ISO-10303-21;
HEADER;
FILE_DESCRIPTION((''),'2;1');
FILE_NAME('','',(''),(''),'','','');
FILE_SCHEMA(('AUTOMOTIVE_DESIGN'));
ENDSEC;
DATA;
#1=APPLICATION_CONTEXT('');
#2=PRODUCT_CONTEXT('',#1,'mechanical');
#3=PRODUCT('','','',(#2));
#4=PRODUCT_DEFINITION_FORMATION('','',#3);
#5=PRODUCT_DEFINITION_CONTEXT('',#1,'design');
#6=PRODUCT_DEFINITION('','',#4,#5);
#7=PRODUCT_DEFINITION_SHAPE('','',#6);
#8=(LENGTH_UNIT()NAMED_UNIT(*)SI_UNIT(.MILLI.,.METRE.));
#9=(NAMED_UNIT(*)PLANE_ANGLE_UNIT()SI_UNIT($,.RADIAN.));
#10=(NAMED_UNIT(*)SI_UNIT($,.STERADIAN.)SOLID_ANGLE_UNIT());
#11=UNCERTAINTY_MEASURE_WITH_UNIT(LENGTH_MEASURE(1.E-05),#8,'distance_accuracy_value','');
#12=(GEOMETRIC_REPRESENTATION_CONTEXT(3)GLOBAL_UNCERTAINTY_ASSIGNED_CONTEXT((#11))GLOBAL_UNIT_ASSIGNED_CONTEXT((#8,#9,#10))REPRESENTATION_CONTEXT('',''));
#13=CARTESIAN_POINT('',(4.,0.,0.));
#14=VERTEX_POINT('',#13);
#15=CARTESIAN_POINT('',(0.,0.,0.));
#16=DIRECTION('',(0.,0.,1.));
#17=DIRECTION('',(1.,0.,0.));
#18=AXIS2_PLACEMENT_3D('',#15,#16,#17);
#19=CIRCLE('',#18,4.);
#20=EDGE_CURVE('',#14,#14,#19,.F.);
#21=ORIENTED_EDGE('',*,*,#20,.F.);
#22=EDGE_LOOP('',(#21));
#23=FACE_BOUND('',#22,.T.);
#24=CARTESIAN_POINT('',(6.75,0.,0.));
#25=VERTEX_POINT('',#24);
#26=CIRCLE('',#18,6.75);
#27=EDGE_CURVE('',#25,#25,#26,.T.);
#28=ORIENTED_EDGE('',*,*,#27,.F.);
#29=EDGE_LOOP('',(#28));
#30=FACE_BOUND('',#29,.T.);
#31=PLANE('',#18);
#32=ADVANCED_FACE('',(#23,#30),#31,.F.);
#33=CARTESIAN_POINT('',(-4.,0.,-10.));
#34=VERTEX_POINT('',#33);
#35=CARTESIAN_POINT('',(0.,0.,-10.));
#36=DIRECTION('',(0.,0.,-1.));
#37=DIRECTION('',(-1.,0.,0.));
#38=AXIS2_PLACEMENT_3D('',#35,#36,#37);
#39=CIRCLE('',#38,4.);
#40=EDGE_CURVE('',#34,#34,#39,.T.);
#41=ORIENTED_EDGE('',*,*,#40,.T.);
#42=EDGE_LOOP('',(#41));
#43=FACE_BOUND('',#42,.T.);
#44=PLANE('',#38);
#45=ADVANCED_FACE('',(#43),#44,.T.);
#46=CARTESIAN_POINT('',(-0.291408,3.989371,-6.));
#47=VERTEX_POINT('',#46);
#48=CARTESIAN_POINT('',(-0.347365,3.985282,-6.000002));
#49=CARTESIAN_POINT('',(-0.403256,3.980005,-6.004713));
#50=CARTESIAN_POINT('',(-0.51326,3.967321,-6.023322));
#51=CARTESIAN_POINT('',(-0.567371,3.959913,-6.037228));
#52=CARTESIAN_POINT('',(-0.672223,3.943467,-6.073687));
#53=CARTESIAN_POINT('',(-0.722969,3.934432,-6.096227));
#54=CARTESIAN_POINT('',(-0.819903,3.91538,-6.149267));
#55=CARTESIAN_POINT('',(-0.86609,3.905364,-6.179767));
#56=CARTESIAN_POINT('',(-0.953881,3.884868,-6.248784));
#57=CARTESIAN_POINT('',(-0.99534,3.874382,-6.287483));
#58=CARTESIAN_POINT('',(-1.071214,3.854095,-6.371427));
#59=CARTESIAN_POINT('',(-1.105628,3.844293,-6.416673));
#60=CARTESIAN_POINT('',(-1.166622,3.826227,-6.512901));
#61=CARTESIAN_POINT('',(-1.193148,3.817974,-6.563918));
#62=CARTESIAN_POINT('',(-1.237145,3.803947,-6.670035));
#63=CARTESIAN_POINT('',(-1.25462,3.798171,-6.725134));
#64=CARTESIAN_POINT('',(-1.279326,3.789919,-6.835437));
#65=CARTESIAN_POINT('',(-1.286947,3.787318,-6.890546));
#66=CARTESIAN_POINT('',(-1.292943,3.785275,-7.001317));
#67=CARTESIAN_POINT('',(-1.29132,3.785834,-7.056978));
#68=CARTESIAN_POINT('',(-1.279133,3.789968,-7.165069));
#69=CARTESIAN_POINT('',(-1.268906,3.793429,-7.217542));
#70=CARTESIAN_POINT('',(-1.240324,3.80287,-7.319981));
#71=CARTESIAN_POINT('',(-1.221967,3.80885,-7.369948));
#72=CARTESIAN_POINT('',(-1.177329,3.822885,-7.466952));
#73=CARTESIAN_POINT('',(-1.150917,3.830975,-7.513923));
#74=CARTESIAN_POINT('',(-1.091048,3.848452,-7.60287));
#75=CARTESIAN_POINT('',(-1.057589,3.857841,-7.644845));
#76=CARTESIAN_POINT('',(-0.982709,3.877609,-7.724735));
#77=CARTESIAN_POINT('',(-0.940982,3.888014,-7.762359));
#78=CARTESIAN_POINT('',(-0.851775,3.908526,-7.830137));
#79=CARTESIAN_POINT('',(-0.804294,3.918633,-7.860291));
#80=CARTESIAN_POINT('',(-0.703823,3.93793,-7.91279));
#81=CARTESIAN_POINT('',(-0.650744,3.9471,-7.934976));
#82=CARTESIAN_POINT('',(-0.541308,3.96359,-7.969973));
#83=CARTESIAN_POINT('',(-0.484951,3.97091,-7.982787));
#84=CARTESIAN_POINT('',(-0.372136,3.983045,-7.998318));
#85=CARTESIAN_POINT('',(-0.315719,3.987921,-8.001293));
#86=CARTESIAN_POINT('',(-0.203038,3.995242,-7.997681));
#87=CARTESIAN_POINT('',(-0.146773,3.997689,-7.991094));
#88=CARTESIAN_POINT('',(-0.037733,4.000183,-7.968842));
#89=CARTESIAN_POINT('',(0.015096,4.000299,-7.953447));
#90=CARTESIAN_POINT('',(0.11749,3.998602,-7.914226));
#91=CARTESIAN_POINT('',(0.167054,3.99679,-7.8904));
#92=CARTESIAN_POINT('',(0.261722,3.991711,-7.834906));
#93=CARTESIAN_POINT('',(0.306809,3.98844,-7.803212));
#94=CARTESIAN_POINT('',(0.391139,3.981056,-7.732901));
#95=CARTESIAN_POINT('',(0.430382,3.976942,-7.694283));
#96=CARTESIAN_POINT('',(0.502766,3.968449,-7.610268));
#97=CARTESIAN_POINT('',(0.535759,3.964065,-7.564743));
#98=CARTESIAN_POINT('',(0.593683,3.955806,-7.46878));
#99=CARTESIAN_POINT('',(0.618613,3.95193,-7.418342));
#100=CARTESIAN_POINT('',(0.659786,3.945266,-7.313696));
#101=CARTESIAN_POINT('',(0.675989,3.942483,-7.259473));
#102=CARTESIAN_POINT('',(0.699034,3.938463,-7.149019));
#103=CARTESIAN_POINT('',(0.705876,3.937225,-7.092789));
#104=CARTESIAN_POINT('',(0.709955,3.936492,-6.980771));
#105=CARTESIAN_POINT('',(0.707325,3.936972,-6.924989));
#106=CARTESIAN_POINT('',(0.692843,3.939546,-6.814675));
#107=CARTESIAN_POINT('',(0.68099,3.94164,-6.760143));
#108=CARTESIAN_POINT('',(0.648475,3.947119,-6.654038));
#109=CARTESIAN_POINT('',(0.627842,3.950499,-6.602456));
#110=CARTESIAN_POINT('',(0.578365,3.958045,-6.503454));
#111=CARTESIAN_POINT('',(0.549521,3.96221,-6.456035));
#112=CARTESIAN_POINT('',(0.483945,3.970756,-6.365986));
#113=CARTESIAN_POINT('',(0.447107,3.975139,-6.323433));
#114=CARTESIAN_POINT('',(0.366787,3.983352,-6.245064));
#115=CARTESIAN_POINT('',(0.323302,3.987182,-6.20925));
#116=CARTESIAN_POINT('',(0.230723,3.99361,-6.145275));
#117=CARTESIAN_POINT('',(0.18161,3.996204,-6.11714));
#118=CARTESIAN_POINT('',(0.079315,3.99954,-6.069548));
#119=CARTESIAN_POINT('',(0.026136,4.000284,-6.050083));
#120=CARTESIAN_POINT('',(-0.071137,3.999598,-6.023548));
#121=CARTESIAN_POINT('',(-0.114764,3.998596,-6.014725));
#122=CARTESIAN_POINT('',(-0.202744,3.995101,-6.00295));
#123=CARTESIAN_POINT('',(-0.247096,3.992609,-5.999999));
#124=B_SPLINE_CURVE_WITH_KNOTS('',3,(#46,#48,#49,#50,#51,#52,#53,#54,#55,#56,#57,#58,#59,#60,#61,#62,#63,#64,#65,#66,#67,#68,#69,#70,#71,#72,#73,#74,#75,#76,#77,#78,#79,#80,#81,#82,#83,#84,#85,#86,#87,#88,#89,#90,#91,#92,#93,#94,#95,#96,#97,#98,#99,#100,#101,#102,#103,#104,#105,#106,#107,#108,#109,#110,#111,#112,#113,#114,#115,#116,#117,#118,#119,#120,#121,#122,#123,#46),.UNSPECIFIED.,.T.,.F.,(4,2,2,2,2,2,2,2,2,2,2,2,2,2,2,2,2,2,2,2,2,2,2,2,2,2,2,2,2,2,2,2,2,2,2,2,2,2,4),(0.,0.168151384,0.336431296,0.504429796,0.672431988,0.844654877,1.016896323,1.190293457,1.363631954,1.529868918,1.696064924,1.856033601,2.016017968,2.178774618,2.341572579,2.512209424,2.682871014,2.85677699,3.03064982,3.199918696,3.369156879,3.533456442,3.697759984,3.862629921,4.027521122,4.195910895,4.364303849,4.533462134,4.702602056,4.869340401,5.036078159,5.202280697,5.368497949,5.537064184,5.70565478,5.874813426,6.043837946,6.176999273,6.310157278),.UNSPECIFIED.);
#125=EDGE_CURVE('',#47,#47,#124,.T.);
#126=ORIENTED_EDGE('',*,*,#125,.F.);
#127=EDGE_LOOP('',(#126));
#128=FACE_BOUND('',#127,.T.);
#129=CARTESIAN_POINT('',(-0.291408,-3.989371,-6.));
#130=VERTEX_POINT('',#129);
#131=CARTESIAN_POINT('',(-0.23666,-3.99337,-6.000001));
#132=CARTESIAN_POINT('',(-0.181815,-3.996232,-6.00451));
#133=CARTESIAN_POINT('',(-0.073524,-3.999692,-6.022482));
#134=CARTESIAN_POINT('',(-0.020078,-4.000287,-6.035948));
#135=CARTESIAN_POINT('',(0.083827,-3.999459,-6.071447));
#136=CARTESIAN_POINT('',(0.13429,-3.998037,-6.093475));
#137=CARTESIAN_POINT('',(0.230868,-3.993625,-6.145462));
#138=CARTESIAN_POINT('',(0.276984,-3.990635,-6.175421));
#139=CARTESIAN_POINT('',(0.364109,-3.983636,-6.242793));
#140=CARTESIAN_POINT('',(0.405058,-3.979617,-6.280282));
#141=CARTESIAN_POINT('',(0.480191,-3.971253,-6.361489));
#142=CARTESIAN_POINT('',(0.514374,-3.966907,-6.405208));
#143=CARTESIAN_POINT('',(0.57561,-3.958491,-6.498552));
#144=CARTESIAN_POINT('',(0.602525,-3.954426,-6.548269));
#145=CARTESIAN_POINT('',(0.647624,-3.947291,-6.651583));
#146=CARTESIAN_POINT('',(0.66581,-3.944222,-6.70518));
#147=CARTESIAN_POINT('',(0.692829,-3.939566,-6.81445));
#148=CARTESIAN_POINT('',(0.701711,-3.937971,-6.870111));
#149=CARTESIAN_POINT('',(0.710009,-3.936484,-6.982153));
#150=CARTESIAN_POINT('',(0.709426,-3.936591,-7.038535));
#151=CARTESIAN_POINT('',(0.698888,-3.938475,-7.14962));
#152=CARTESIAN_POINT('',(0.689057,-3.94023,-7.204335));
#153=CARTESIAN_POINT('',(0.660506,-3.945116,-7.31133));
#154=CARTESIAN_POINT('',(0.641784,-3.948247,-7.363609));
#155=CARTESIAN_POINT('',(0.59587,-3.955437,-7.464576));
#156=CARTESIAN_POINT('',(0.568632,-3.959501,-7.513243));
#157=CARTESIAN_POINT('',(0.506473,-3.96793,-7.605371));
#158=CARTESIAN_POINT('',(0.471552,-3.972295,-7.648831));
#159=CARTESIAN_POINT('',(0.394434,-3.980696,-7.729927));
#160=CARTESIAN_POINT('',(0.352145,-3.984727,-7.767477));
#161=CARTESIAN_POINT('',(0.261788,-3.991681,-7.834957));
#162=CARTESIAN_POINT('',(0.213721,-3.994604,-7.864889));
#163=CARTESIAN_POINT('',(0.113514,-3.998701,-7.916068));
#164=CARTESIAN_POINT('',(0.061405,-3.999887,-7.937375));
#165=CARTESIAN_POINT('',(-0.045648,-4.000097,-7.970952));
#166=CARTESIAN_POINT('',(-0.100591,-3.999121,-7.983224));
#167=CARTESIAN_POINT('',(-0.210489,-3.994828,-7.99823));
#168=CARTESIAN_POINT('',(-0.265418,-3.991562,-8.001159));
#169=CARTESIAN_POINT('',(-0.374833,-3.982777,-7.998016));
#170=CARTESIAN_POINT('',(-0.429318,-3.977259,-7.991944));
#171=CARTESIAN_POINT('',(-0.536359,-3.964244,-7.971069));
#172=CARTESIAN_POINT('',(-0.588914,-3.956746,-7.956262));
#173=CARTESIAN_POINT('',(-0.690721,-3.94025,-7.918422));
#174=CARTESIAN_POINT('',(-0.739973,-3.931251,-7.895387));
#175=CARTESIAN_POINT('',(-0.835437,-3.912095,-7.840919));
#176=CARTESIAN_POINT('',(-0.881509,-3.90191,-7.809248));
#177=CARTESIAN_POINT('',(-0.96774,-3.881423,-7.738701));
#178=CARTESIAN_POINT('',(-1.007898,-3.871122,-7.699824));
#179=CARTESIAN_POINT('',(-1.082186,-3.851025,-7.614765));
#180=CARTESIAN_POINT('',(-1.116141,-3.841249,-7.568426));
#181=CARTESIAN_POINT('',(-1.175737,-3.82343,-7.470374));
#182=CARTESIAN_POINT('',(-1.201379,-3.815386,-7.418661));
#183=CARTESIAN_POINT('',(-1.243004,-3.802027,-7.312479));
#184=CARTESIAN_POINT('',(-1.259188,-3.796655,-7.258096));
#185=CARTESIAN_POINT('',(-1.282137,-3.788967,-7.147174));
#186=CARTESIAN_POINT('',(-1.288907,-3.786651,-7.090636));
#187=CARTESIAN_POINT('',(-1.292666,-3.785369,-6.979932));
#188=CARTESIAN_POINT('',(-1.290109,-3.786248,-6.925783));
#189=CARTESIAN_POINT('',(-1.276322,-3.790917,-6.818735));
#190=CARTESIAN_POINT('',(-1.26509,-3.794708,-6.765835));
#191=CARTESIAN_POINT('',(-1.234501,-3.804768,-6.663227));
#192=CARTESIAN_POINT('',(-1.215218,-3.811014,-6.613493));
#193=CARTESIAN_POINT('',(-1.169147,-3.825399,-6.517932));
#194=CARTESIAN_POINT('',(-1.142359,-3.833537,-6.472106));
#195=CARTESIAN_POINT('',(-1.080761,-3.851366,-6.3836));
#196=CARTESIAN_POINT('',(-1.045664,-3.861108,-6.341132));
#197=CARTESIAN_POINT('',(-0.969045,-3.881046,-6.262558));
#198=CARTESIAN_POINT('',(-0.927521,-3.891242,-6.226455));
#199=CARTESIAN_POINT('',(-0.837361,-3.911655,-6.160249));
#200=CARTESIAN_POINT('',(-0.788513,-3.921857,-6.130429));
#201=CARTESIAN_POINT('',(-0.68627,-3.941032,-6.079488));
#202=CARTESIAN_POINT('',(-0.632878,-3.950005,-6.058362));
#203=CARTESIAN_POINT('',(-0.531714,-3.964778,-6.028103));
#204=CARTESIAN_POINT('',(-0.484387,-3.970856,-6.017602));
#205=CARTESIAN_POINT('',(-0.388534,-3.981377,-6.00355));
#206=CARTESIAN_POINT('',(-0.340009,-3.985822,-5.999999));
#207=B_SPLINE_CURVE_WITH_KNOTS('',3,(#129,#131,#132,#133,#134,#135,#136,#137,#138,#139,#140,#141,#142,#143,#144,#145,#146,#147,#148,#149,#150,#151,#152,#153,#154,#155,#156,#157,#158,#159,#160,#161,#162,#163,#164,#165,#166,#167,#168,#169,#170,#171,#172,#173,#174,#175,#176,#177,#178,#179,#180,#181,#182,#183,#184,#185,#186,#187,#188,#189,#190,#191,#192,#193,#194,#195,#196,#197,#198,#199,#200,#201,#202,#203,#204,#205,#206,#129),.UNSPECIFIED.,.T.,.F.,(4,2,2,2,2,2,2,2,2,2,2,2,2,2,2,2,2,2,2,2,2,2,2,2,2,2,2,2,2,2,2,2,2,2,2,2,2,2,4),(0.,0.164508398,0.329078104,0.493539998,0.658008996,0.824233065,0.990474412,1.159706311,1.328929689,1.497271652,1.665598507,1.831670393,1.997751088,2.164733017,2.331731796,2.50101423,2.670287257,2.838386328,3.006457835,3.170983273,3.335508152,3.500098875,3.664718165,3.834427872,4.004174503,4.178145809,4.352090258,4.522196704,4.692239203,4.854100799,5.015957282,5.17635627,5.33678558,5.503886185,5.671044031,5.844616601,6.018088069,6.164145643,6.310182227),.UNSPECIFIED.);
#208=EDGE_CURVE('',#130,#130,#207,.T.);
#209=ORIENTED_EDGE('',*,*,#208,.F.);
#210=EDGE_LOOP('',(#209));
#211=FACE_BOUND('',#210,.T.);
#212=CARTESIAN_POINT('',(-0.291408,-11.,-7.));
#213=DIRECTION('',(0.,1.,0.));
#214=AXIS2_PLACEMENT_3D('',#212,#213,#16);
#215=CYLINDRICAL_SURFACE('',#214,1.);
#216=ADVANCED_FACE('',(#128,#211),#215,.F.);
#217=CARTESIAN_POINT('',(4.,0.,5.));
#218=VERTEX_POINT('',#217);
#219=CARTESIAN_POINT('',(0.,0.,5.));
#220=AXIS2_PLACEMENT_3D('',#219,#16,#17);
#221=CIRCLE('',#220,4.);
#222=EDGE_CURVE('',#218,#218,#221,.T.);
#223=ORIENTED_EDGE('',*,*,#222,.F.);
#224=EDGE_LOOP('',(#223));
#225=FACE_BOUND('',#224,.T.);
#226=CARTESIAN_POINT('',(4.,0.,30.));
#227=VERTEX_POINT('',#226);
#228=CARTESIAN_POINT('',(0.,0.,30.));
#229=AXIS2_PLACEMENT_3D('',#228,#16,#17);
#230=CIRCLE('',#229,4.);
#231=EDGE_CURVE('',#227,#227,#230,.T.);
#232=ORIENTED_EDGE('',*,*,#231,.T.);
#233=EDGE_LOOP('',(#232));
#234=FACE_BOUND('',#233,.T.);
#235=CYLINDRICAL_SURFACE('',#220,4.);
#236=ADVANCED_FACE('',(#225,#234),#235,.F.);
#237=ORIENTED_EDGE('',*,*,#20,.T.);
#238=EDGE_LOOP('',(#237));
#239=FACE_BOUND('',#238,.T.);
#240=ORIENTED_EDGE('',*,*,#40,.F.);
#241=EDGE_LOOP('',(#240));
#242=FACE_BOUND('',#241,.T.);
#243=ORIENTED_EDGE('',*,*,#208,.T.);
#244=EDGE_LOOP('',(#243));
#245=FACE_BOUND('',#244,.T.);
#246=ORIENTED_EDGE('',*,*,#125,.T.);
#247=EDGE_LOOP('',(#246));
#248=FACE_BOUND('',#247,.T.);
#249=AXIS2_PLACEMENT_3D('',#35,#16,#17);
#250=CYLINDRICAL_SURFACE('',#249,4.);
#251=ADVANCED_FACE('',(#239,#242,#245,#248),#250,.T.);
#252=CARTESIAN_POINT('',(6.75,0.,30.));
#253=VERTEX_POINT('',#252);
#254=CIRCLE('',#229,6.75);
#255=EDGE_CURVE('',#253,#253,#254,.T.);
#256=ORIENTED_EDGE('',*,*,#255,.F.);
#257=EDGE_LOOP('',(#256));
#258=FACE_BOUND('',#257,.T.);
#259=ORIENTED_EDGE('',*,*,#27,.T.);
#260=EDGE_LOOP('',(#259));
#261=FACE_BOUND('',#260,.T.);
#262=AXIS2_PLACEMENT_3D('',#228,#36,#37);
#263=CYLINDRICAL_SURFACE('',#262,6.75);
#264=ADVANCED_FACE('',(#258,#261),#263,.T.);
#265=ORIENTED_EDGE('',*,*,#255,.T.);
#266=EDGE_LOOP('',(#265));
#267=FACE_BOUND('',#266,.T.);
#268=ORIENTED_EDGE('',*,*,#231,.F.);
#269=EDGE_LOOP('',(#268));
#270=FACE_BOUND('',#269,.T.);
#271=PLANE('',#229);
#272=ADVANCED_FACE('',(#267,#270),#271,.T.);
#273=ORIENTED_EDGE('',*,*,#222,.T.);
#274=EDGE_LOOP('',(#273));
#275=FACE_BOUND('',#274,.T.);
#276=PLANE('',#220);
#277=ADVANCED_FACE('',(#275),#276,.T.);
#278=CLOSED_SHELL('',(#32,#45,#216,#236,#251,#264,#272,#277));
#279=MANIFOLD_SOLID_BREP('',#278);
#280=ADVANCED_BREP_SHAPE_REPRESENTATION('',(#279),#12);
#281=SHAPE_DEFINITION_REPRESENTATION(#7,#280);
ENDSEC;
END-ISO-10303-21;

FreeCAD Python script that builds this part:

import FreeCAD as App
import Part
import Sketcher

doc = App.newDocument("Part")
body = doc.addObject("PartDesign::Body", "Body")

# Sketch on XY plane
sketch1 = doc.addObject("Sketcher::SketchObject", "Sketch")
body.addObject(sketch1)
sketch1.AttachmentSupport = (doc.XY_Plane, [""])
sketch1.MapMode = "FlatFace"
sketch1.addGeometry(Part.Circle(App.Vector(0, 0, 0), App.Vector(0, 0, 1), 6.75), False)
sketch1.addConstraint(Sketcher.Constraint("Coincident", 0, 3, -1, 1))
sketch1.addConstraint(Sketcher.Constraint("Diameter", 0, 13.5))
pad1 = doc.addObject("PartDesign::Pad", "Pad")
body.addObject(pad1)
pad1.Profile = sketch1
pad1.Length = 30

# Sketch on XY plane
sketch2 = doc.addObject("Sketcher::SketchObject", "Sketch001")
body.addObject(sketch2)
sketch2.AttachmentSupport = (doc.XY_Plane, [""])
sketch2.MapMode = "FlatFace"
sketch2.addGeometry(Part.Circle(App.Vector(0, 0, 0), App.Vector(0, 0, 1), 4), False)
sketch2.addConstraint(Sketcher.Constraint("Coincident", 0, 3, -1, 1))
sketch2.addConstraint(Sketcher.Constraint("Diameter", 0, 8.0))
pad2 = doc.addObject("PartDesign::Pad", "Pad001")
body.addObject(pad2)
pad2.Profile = sketch2
pad2.Length = 10
pad2.Reversed = True

# Sketch on XZ plane
sketch3 = doc.addObject("Sketcher::SketchObject", "Sketch002")
body.addObject(sketch3)
sketch3.AttachmentSupport = (doc.XZ_Plane, [""])
sketch3.MapMode = "FlatFace"
sketch3.AttachmentOffset = App.Placement(App.Vector(0, 0, -4), App.Rotation())
sketch3.addGeometry(Part.Circle(App.Vector(-0.291408, -7, 0), App.Vector(0, 0, 1), 1), False)
sketch3.addConstraint(Sketcher.Constraint("Diameter", 0, 2.0))
sketch3.addConstraint(Sketcher.Constraint("DistanceY", 0, 3, -1, 1, 7.0))
sketch3.addConstraint(Sketcher.Constraint("DistanceX", 0, 3, -1, 1, 0.291408))
pocket1 = doc.addObject("PartDesign::Pocket", "Pocket")
body.addObject(pocket1)
pocket1.Profile = sketch3
pocket1.Length = 15
pocket1.Reversed = True

# Sketch on XY plane
sketch4 = doc.addObject("Sketcher::SketchObject", "Sketch003")
body.addObject(sketch4)
sketch4.AttachmentSupport = (doc.XY_Plane, [""])
sketch4.MapMode = "FlatFace"
sketch4.AttachmentOffset = App.Placement(App.Vector(0, 0, 30), App.Rotation())
sketch4.addGeometry(Part.Circle(App.Vector(0, 0, 0), App.Vector(0, 0, 1), 4), False)
sketch4.addConstraint(Sketcher.Constraint("Coincident", 0, 3, -1, 1))
sketch4.addConstraint(Sketcher.Constraint("Diameter", 0, 8.0))
pocket2 = doc.addObject("PartDesign::Pocket", "Pocket001")
body.addObject(pocket2)
pocket2.Profile = sketch4
pocket2.Length = 25

doc.recompute()
